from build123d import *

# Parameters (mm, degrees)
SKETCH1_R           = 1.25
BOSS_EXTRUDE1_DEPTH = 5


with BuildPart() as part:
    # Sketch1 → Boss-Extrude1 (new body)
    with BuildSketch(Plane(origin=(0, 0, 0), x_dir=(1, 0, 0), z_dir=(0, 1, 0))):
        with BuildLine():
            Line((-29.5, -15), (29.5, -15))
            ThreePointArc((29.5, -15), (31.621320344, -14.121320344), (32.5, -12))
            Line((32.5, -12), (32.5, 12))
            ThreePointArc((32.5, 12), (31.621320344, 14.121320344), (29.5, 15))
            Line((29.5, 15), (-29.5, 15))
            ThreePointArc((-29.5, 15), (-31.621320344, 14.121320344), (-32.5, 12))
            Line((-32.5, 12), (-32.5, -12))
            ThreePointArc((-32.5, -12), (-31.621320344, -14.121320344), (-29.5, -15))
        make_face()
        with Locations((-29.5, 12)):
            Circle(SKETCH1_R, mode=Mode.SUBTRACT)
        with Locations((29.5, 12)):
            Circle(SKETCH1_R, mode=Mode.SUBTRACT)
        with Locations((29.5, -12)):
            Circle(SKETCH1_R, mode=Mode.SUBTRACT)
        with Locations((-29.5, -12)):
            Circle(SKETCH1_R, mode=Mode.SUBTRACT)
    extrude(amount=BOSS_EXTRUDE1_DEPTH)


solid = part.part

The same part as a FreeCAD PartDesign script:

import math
import FreeCAD as App
import Part
import Sketcher

V = App.Vector
Q = App.Units.Quantity

doc = App.newDocument("Part")
body = doc.addObject("PartDesign::Body", "Body")

sketch1 = doc.addObject("Sketcher::SketchObject", "Sketch")
body.addObject(sketch1)
sketch1.AttachmentSupport = (doc.XZ_Plane, [""])
sketch1.MapMode = "FlatFace"
sketch1.addGeometry([
    Part.LineSegment(V(-29.5, 15, 0), V(29.5, 15, 0)),
    Part.ArcOfCircle(Part.Circle(V(29.5, 12, 0), V(0, 0, 1), 3), math.radians(0), math.radians(90)),
    Part.LineSegment(V(32.5, 12, 0), V(32.5, -12, 0)),
    Part.ArcOfCircle(Part.Circle(V(29.5, -12, 0), V(0, 0, 1), 3), math.radians(-90), math.radians(0)),
    Part.LineSegment(V(29.5, -15, 0), V(-29.5, -15, 0)),
    Part.ArcOfCircle(Part.Circle(V(-29.5, -12, 0), V(0, 0, 1), 3), math.radians(180), math.radians(270)),
    Part.LineSegment(V(-32.5, -12, 0), V(-32.5, 12, 0)),
    Part.ArcOfCircle(Part.Circle(V(-29.5, 12, 0), V(0, 0, 1), 3), math.radians(90), math.radians(180)),
    Part.Circle(V(-29.5, 12, 0), V(0, 0, 1), 1.2),
    Part.Circle(V(29.5, 12, 0), V(0, 0, 1), 1.2),
    Part.Circle(V(-29.5, -12, 0), V(0, 0, 1), 1.2),
    Part.Circle(V(29.5, -12, 0), V(0, 0, 1), 1.2),
], False)
sketch1.addConstraint([
    Sketcher.Constraint("Tangent", 0, 2, 1, 2),
    Sketcher.Constraint("Tangent", 1, 1, 2, 1),
    Sketcher.Constraint("Tangent", 2, 2, 3, 2),
    Sketcher.Constraint("Tangent", 3, 1, 4, 1),
    Sketcher.Constraint("Tangent", 4, 2, 5, 2),
    Sketcher.Constraint("Tangent", 5, 1, 6, 1),
    Sketcher.Constraint("Tangent", 6, 2, 7, 2),
    Sketcher.Constraint("Tangent", 7, 1, 0, 1),
    Sketcher.Constraint("Horizontal", 0),
    Sketcher.Constraint("Vertical", 2),
    Sketcher.Constraint("Horizontal", 4),
    Sketcher.Constraint("Vertical", 6),
    Sketcher.Constraint("Coincident", 8, 3, 7, 3),
    Sketcher.Constraint("Coincident", 9, 3, 1, 3),
    Sketcher.Constraint("Coincident", 10, 3, 5, 3),
    Sketcher.Constraint("Coincident", 11, 3, 3, 3),
    Sketcher.Constraint("Equal", 1, 3),
    Sketcher.Constraint("Equal", 3, 5),
    Sketcher.Constraint("Equal", 5, 7),
    Sketcher.Constraint("Equal", 8, 9),
    Sketcher.Constraint("Equal", 9, 10),
    Sketcher.Constraint("Equal", 10, 11),
    Sketcher.Constraint("Symmetric", 1, 3, 5, 3, -1, 1),
    Sketcher.Constraint("Radius", 1, Q("3 mm")),
    Sketcher.Constraint("Diameter", 8, Q("2.5 mm")),
    Sketcher.Constraint("DistanceX", 0, 1, 0, 2, Q("59 mm")),
    Sketcher.Constraint("DistanceY", 2, 2, 2, 1, Q("24 mm")),
])
pad1 = doc.addObject("PartDesign::Pad", "Pad")
body.addObject(pad1)
pad1.Profile = sketch1
pad1.Length = 5
pad1.Reversed = True

doc.recompute()
